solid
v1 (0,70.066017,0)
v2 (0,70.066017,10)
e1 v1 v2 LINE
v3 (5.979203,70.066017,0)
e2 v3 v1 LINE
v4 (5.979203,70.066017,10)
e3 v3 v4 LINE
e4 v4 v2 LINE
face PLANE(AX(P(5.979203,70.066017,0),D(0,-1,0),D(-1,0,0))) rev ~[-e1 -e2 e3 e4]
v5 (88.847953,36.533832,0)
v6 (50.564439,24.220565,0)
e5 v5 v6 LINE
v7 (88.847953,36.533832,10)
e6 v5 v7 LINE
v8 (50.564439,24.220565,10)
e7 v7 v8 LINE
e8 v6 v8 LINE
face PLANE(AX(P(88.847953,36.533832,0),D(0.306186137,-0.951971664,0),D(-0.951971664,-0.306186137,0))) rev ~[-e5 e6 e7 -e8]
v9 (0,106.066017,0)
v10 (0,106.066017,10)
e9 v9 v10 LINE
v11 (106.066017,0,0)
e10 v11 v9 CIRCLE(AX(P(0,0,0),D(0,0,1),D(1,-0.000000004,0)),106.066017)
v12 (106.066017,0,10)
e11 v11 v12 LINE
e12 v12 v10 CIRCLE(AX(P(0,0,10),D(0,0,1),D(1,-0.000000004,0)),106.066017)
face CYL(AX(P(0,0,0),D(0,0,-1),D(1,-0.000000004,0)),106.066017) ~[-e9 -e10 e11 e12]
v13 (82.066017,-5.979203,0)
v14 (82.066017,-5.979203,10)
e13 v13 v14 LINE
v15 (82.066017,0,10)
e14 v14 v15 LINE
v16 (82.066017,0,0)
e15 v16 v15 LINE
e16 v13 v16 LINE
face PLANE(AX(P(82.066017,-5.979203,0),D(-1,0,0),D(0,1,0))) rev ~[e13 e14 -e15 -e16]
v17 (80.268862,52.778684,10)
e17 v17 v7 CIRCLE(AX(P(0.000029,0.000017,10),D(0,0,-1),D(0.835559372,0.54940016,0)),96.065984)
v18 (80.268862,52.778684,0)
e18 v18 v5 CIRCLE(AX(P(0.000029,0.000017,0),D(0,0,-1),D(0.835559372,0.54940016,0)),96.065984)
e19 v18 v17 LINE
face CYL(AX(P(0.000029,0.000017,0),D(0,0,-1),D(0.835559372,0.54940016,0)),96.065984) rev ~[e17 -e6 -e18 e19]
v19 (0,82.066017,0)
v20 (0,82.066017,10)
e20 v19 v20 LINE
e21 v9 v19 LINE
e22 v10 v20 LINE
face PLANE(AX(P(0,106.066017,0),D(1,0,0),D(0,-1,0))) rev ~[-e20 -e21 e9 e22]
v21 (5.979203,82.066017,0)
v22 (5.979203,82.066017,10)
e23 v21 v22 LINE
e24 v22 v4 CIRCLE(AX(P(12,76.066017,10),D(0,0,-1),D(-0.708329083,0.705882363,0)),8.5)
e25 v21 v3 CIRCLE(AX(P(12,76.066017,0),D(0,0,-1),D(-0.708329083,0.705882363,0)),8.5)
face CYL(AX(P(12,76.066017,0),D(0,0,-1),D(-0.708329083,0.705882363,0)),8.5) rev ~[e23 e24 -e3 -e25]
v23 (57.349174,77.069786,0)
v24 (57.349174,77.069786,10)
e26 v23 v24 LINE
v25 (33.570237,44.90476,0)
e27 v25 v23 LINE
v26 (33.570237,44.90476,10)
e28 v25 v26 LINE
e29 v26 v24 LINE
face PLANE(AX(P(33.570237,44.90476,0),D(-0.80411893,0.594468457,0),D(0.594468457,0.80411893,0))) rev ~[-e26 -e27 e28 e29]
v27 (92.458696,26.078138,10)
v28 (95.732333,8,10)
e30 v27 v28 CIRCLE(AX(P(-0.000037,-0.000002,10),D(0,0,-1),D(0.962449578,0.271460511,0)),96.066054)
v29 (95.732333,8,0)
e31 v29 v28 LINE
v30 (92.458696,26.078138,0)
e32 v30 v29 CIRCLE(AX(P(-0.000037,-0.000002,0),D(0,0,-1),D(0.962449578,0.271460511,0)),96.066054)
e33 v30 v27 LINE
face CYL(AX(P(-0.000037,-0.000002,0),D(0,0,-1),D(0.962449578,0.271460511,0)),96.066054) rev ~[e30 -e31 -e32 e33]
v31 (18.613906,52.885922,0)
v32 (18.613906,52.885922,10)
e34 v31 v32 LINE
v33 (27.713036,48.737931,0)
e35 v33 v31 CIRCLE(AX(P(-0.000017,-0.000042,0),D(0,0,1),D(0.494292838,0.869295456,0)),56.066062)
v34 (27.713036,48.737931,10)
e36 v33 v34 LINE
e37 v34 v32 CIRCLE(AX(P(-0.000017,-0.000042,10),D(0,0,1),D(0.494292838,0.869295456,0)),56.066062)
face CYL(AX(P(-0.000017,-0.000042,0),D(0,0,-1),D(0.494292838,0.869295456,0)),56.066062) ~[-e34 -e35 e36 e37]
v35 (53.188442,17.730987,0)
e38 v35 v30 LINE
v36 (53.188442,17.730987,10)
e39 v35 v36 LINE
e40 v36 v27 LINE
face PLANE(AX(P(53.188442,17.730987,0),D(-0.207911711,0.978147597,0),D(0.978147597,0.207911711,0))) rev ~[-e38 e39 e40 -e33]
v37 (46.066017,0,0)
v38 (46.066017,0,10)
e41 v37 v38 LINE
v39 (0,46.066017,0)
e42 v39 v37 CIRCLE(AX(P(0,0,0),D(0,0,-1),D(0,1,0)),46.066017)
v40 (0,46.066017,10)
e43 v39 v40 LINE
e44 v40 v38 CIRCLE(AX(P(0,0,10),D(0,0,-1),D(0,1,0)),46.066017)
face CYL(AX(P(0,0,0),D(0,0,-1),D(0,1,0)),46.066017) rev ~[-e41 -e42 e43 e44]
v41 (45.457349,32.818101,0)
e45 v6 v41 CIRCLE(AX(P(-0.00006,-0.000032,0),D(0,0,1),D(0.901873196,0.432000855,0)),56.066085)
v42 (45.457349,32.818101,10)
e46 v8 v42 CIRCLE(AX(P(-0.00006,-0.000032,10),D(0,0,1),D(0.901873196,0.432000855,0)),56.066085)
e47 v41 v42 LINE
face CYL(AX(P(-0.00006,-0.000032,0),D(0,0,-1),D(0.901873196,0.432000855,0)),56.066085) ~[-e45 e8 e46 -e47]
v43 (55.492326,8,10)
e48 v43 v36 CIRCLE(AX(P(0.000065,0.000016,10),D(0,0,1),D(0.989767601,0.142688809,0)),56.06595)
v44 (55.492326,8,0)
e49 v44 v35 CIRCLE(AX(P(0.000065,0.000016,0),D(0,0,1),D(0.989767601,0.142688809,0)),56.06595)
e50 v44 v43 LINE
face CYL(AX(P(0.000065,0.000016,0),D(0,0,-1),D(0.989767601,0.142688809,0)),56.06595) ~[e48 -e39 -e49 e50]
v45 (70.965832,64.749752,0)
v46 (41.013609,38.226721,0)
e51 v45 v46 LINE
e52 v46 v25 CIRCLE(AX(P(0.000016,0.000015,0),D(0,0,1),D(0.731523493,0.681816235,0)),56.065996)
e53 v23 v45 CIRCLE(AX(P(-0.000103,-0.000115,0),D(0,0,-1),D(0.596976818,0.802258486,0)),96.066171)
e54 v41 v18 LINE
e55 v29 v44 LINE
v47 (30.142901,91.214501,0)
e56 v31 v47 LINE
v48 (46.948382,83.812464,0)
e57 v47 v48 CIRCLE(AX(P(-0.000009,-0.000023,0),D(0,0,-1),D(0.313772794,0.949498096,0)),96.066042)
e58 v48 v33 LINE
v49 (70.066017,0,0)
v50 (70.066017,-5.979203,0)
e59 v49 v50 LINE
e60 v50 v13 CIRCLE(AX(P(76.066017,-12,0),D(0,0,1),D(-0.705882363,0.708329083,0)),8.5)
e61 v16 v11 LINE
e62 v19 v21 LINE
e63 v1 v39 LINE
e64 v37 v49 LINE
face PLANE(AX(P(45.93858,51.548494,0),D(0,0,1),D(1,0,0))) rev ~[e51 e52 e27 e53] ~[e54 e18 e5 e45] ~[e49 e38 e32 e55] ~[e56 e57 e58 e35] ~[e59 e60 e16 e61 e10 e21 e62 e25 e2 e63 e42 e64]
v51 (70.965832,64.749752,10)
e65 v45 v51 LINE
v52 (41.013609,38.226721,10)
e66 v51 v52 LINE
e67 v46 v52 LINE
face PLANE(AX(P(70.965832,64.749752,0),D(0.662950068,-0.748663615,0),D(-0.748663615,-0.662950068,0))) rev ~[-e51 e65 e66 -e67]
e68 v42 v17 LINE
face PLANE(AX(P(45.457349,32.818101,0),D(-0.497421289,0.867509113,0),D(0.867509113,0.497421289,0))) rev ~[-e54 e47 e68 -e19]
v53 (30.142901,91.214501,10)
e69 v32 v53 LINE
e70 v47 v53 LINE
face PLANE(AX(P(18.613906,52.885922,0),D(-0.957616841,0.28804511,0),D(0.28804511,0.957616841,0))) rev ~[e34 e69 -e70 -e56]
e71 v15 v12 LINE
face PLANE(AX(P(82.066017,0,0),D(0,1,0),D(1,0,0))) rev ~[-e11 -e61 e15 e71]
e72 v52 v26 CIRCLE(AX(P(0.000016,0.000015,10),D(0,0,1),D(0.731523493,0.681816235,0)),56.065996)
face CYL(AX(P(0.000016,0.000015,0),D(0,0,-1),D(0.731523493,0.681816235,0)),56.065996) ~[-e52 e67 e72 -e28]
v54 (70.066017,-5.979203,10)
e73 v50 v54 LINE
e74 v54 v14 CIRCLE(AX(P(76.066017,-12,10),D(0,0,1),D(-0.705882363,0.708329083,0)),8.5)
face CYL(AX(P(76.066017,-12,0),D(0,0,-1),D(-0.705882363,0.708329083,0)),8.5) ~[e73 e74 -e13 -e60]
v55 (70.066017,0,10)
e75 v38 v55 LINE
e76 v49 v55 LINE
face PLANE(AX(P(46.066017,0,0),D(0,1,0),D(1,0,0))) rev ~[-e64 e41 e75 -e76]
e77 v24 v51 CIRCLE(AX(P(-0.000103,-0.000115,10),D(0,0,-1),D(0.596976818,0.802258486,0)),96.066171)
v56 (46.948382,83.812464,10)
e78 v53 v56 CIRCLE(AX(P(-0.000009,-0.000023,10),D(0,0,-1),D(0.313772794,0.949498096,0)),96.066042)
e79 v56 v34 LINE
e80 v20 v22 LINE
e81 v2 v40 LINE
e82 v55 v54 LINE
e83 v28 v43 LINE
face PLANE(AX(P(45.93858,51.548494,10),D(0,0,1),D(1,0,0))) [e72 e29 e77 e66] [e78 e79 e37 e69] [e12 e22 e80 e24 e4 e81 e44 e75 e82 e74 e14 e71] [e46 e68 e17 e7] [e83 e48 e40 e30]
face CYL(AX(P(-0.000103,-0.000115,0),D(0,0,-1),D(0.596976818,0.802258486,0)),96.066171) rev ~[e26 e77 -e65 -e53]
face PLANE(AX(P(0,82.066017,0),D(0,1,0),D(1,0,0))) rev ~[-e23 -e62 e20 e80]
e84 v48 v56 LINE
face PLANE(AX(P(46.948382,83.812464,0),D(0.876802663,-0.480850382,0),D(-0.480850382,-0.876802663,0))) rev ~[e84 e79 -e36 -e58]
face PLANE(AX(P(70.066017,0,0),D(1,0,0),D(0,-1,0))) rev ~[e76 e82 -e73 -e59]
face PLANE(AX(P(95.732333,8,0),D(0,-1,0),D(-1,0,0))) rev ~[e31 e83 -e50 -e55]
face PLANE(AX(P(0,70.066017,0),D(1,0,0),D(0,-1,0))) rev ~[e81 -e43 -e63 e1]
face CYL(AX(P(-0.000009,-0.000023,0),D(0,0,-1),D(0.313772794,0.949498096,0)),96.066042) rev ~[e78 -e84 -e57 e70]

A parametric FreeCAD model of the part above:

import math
import FreeCAD as App
import Part
import Sketcher

V = App.Vector
Q = App.Units.Quantity

doc = App.newDocument("Part")
params = doc.addObject("Spreadsheet::Sheet", "Params")
for row, (alias, value) in enumerate([
    ("sketch1_radius", "8.5 mm"),
    ("sketch1_width", "24 mm"),
    ("pad1_length", "10 mm"),
], start=1):
    params.set(f"A{row}", alias)
    params.set(f"B{row}", "=" + value)
    params.setAlias(f"B{row}", alias)

body = doc.addObject("PartDesign::Body", "Body")

# Sketch on XY plane
sketch1 = body.newObject("Sketcher::SketchObject", "Sketch")
sketch1.AttachmentSupport = (doc.getObject("XY_Plane"), [""])
sketch1.MapMode = "FlatFace"
sketch1.addGeometry(Part.ArcOfCircle(Part.Circle(V(0, 0, 0), V(0, 0, 1), 106), math.radians(0), math.radians(90)), False)
sketch1.addGeometry(Part.LineSegment(V(0, 106, 0), V(0, 82, 0)), False)
sketch1.addGeometry(Part.LineSegment(V(0, 82, 0), V(6, 82, 0)), False)
sketch1.addGeometry(Part.ArcOfCircle(Part.Circle(V(12, 76, 0), V(0, 0, 1), 8), math.radians(-135), math.radians(135)), False)
sketch1.addGeometry(Part.LineSegment(V(6, 70, 0), V(0, 70, 0)), False)
sketch1.addGeometry(Part.LineSegment(V(0, 70, 0), V(0, 46, 0)), False)
sketch1.addGeometry(Part.ArcOfCircle(Part.Circle(V(0, 0, 0), V(0, 0, 1), 46), math.radians(0), math.radians(90)), False)
sketch1.addGeometry(Part.LineSegment(V(46, 0, 0), V(70, 0, 0)), False)
sketch1.addGeometry(Part.LineSegment(V(70, 0, 0), V(70, -6, 0)), False)
sketch1.addGeometry(Part.ArcOfCircle(Part.Circle(V(76, -12, 0), V(0, 0, 1), 8), math.radians(135), math.radians(405)), False)
sketch1.addGeometry(Part.LineSegment(V(82, -6, 0), V(82, 0, 0)), False)
sketch1.addGeometry(Part.LineSegment(V(82, 0, 0), V(106, 0, 0)), False)
sketch1.addGeometry(Part.LineSegment(V(53, 18, 0), V(92, 26, 0)), False)
sketch1.addGeometry(Part.ArcOfCircle(Part.Circle(V(0, 0, 0), V(0, 0, 1), 96), math.radians(4.78), math.radians(15.75)), False)
sketch1.addGeometry(Part.LineSegment(V(96, 8, 0), V(55, 8, 0)), False)
sketch1.addGeometry(Part.ArcOfCircle(Part.Circle(V(0, 0, 0), V(0, 0, 1), 56), math.radians(8.2), math.radians(18.44)), False)
sketch1.addGeometry(Part.ArcOfCircle(Part.Circle(V(0, 0, 0), V(0, 0, 1), 96), math.radians(22.35), math.radians(33.33)), False)
sketch1.addGeometry(Part.LineSegment(V(89, 37, 0), V(51, 24, 0)), False)
sketch1.addGeometry(Part.ArcOfCircle(Part.Circle(V(0, 0, 0), V(0, 0, 1), 56), math.radians(25.59), math.radians(35.83)), False)
sketch1.addGeometry(Part.LineSegment(V(45, 33, 0), V(80, 53, 0)), False)
sketch1.addGeometry(Part.ArcOfCircle(Part.Circle(V(0, 0, 0), V(0, 0, 1), 96), math.radians(60.74), math.radians(71.71)), False)
sketch1.addGeometry(Part.LineSegment(V(47, 84, 0), V(28, 49, 0)), False)
sketch1.addGeometry(Part.ArcOfCircle(Part.Circle(V(0, 0, 0), V(0, 0, 1), 56), math.radians(60.38), math.radians(70.61)), False)
sketch1.addGeometry(Part.LineSegment(V(19, 53, 0), V(30, 91, 0)), False)
sketch1.addGeometry(Part.ArcOfCircle(Part.Circle(V(0, 0, 0), V(0, 0, 1), 96), math.radians(42.38), math.radians(53.35)), False)
sketch1.addGeometry(Part.LineSegment(V(71, 65, 0), V(41, 38, 0)), False)
sketch1.addGeometry(Part.ArcOfCircle(Part.Circle(V(0, 0, 0), V(0, 0, 1), 56), math.radians(42.99), math.radians(53.22)), False)
sketch1.addGeometry(Part.LineSegment(V(34, 45, 0), V(57, 77, 0)), False)
sketch1.addConstraint(Sketcher.Constraint("Coincident", 0, 2, 1, 1))
sketch1.addConstraint(Sketcher.Constraint("Coincident", 1, 2, 2, 1))
sketch1.addConstraint(Sketcher.Constraint("Coincident", 2, 2, 3, 2))
sketch1.addConstraint(Sketcher.Constraint("Coincident", 3, 1, 4, 1))
sketch1.addConstraint(Sketcher.Constraint("Coincident", 4, 2, 5, 1))
sketch1.addConstraint(Sketcher.Constraint("Coincident", 5, 2, 6, 2))
sketch1.addConstraint(Sketcher.Constraint("Coincident", 6, 1, 7, 1))
sketch1.addConstraint(Sketcher.Constraint("Coincident", 7, 2, 8, 1))
sketch1.addConstraint(Sketcher.Constraint("Coincident", 8, 2, 9, 1))
sketch1.addConstraint(Sketcher.Constraint("Coincident", 9, 2, 10, 1))
sketch1.addConstraint(Sketcher.Constraint("Coincident", 10, 2, 11, 1))
sketch1.addConstraint(Sketcher.Constraint("Coincident", 11, 2, 0, 1))
sketch1.addConstraint(Sketcher.Constraint("Coincident", 12, 2, 13, 2))
sketch1.addConstraint(Sketcher.Constraint("Coincident", 13, 1, 14, 1))
sketch1.addConstraint(Sketcher.Constraint("Coincident", 14, 2, 15, 1))
sketch1.addConstraint(Sketcher.Constraint("Coincident", 15, 2, 12, 1))
sketch1.addConstraint(Sketcher.Constraint("Coincident", 16, 1, 17, 1))
sketch1.addConstraint(Sketcher.Constraint("Coincident", 17, 2, 18, 1))
sketch1.addConstraint(Sketcher.Constraint("Coincident", 18, 2, 19, 1))
sketch1.addConstraint(Sketcher.Constraint("Coincident", 19, 2, 16, 2))
sketch1.addConstraint(Sketcher.Constraint("Coincident", 20, 1, 21, 1))
sketch1.addConstraint(Sketcher.Constraint("Coincident", 21, 2, 22, 1))
sketch1.addConstraint(Sketcher.Constraint("Coincident", 22, 2, 23, 1))
sketch1.addConstraint(Sketcher.Constraint("Coincident", 23, 2, 20, 2))
sketch1.addConstraint(Sketcher.Constraint("Coincident", 24, 1, 25, 1))
sketch1.addConstraint(Sketcher.Constraint("Coincident", 25, 2, 26, 1))
sketch1.addConstraint(Sketcher.Constraint("Coincident", 26, 2, 27, 1))
sketch1.addConstraint(Sketcher.Constraint("Coincident", 27, 2, 24, 2))
sketch1.addConstraint(Sketcher.Constraint("Vertical", 1))
sketch1.addConstraint(Sketcher.Constraint("Horizontal", 2))
sketch1.addConstraint(Sketcher.Constraint("Horizontal", 4))
sketch1.addConstraint(Sketcher.Constraint("Vertical", 5))
sketch1.addConstraint(Sketcher.Constraint("Horizontal", 7))
sketch1.addConstraint(Sketcher.Constraint("Vertical", 8))
sketch1.addConstraint(Sketcher.Constraint("Vertical", 10))
sketch1.addConstraint(Sketcher.Constraint("Horizontal", 11))
sketch1.addConstraint(Sketcher.Constraint("Horizontal", 14))
sketch1.addConstraint(Sketcher.Constraint("Coincident", 0, 3, -1, 1))
sketch1.addConstraint(Sketcher.Constraint("Coincident", 6, 3, -1, 1))
sketch1.addConstraint(Sketcher.Constraint("Equal", 3, 9))
sketch1.addConstraint(Sketcher.Constraint("PointOnObject", 0, 2, -2))
sketch1.addConstraint(Sketcher.Constraint("PointOnObject", 4, 2, -2))
sketch1.addConstraint(Sketcher.Constraint("PointOnObject", 6, 1, -1))
sketch1.addConstraint(Sketcher.Constraint("PointOnObject", 10, 2, -1))
sketch1.addConstraint(Sketcher.Constraint("Horizontal", 15, 3, 16, 3))
sketch1.addConstraint(Sketcher.Constraint("Horizontal", 15, 3, 26, 3))
sketch1.addConstraint(Sketcher.Constraint("Horizontal", 8, 2, 9, 2))
sketch1.addConstraint(Sketcher.Constraint("Vertical", 2, 2, 3, 1))
sketch1.addConstraint(Sketcher.Constraint("Equal", 7, 11))
sketch1.addConstraint(Sketcher.Constraint("Equal", 11, 1))
sketch1.addConstraint(Sketcher.Constraint("Equal", 1, 5))
sketch1.addConstraint(Sketcher.Constraint("Equal", 4, 8))
sketch1.addConstraint(Sketcher.Constraint("Radius", 3, 8.5))
sketch1.addConstraint(Sketcher.Constraint("DistanceX", 7, 1, 7, 2, 24.0))
sketch1.addConstraint(Sketcher.Constraint("Angle", 12, Q("12.000001 deg")))
sketch1.addConstraint(Sketcher.Constraint("DistanceX", -1, 1, 3, 3, 12.0))
sketch1.addConstraint(Sketcher.Constraint("DistanceY", -1, 1, 13, 1, 8.0))
sketch1.addConstraint(Sketcher.Constraint("DistanceY", 9, 3, 13, 3, 11.999998))
sketch1.addConstraint(Sketcher.Constraint("DistanceY", 3, 3, 0, 2, 30.0))
sketch1.addConstraint(Sketcher.Constraint("Radius", 15, 56.06595))
sketch1.addConstraint(Sketcher.Constraint("Radius", 20, 96.066042))
sketch1.addConstraint(Sketcher.Constraint("Radius", 24, 96.066171))
sketch1.addConstraint(Sketcher.Constraint("Radius", 0, 106.066017))
sketch1.addConstraint(Sketcher.Constraint("Radius", 13, 96.066054))
sketch1.addConstraint(Sketcher.Constraint("Radius", 16, 96.065984))
sketch1.addConstraint(Sketcher.Constraint("Radius", 18, 56.066085))
sketch1.addConstraint(Sketcher.Constraint("Radius", 22, 56.066062))
sketch1.addConstraint(Sketcher.Constraint("Radius", 26, 56.065996))
sketch1.addConstraint(Sketcher.Constraint("DistanceY", 15, 3, 3, 3, 76.066001))
sketch1.addConstraint(Sketcher.Constraint("DistanceX", 26, 3, 6, 1, 46.066001))
sketch1.addConstraint(Sketcher.Constraint("DistanceY", -1, 1, 18, 2, 32.818101))
sketch1.addConstraint(Sketcher.Constraint("DistanceX", -1, 1, 23, 2, 30.142901))
sketch1.addConstraint(Sketcher.Constraint("DistanceY", -1, 1, 23, 2, 91.214501))
sketch1.addConstraint(Sketcher.Constraint("DistanceY", 25, 2, 22, 2, 14.659201))
sketch1.addConstraint(Sketcher.Constraint("DistanceX", 21, 2, 26, 2, 5.857201))
sketch1.addConstraint(Sketcher.Constraint("DistanceX", 26, 2, 17, 2, 16.994202))
sketch1.addConstraint(Sketcher.Constraint("DistanceY", 19, 2, 27, 2, 24.291102))
sketch1.addConstraint(Sketcher.Constraint("DistanceX", 14, 2, 14, 1, 40.240007))
sketch1.addConstraint(Sketcher.Constraint("DistanceX", -1, 1, 17, 2, 50.564439))
sketch1.addConstraint(Sketcher.Constraint("DistanceX", -1, 1, 18, 2, 45.457349))
sketch1.addConstraint(Sketcher.Constraint("DistanceX", -1, 1, 19, 2, 80.268862))
sketch1.addConstraint(Sketcher.Constraint("DistanceY", -1, 1, 21, 2, 48.737931))
sketch1.addConstraint(Sketcher.Constraint("DistanceY", -1, 1, 22, 2, 52.885922))
sketch1.addConstraint(Sketcher.Constraint("DistanceX", 15, 3, 9, 3, 76.065952))
sketch1.addConstraint(Sketcher.Constraint("DistanceX", 16, 3, 9, 3, 76.065988))
sketch1.addConstraint(Sketcher.Constraint("DistanceX", 10, 2, 12, 2, 10.392679))
sketch1.addConstraint(Sketcher.Constraint("DistanceX", 16, 1, 13, 1, 6.88438))
sketch1.addConstraint(Sketcher.Constraint("DistanceY", 17, 2, 19, 2, 28.558119))
sketch1.addConstraint(Sketcher.Constraint("DistanceX", 3, 3, 20, 1, 34.948382))
sketch1.addConstraint(Sketcher.Constraint("DistanceY", 19, 2, 20, 1, 31.03378))
sketch1.addConstraint(Sketcher.Constraint("DistanceX", 22, 2, 21, 2, 9.09913))
sketch1.addConstraint(Sketcher.Constraint("DistanceX", 24, 1, 19, 2, 9.30303))
sketch1.addConstraint(Sketcher.Constraint("DistanceY", 19, 2, 24, 1, 11.971068))
sketch1.addConstraint(Sketcher.Constraint("DistanceX", 20, 1, 27, 2, 10.400792))
sketch1.setExpression("Constraints[52]", "Params.sketch1_radius")
sketch1.setExpression("Constraints[53]", "Params.sketch1_width")
pad1 = body.newObject("PartDesign::Pad", "Pad")
pad1.Profile = sketch1
pad1.setExpression("Length", "Params.pad1_length")

doc.recompute()
